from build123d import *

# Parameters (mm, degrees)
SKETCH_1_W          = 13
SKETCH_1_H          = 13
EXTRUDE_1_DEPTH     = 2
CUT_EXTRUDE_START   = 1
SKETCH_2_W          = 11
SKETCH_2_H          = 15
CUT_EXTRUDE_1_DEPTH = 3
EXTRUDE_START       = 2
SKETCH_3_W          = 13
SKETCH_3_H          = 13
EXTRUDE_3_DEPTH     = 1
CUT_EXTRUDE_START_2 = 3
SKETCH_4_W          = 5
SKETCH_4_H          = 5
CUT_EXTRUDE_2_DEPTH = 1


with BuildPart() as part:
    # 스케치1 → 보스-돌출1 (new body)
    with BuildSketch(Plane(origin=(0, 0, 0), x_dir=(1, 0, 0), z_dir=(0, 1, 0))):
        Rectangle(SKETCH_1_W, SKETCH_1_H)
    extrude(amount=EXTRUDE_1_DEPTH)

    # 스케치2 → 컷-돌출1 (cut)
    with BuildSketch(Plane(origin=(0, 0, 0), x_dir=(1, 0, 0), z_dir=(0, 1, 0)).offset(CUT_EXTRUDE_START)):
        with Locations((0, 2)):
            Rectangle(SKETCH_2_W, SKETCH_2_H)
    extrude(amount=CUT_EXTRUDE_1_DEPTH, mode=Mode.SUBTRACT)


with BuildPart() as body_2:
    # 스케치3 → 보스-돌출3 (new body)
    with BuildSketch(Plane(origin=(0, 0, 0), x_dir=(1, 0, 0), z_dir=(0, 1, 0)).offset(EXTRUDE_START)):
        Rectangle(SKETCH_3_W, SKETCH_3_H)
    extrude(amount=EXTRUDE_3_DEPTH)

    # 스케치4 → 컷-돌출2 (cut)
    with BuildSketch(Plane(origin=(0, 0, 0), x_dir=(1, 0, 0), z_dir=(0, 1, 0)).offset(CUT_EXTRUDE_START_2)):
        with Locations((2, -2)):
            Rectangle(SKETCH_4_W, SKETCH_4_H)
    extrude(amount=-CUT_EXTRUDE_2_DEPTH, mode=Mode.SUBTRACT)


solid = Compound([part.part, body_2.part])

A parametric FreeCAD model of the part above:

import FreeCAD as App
import Part
import Sketcher

V = App.Vector
Q = App.Units.Quantity

doc = App.newDocument("Part")
body = doc.addObject("PartDesign::Body", "Body")

# Sketch on XZ plane
sketch1 = body.newObject("Sketcher::SketchObject", "Sketch")
sketch1.AttachmentSupport = (doc.getObject("XZ_Plane"), [""])
sketch1.MapMode = "FlatFace"
sketch1.addGeometry(Part.LineSegment(V(-6.5, -6.5, 0), V(-6.5, 6.5, 0)), False)
sketch1.addGeometry(Part.LineSegment(V(-6.5, 6.5, 0), V(6.5, 6.5, 0)), False)
sketch1.addGeometry(Part.LineSegment(V(6.5, 6.5, 0), V(6.5, -6.5, 0)), False)
sketch1.addGeometry(Part.LineSegment(V(6.5, -6.5, 0), V(-6.5, -6.5, 0)), False)
sketch1.addConstraint(Sketcher.Constraint("Coincident", 0, 2, 1, 1))
sketch1.addConstraint(Sketcher.Constraint("Coincident", 1, 2, 2, 1))
sketch1.addConstraint(Sketcher.Constraint("Coincident", 2, 2, 3, 1))
sketch1.addConstraint(Sketcher.Constraint("Coincident", 3, 2, 0, 1))
sketch1.addConstraint(Sketcher.Constraint("Vertical", 0))
sketch1.addConstraint(Sketcher.Constraint("Horizontal", 1))
sketch1.addConstraint(Sketcher.Constraint("Vertical", 2))
sketch1.addConstraint(Sketcher.Constraint("Horizontal", 3))
sketch1.addConstraint(Sketcher.Constraint("Symmetric", 0, 2, 2, 2, -1, 1))
sketch1.addConstraint(Sketcher.Constraint("Equal", 3, 0))
sketch1.addConstraint(Sketcher.Constraint("DistanceX", 1, 1, 1, 2, Q("13 mm")))
pad1 = body.newObject("PartDesign::Pad", "Pad")
pad1.Profile = sketch1
pad1.Length = 2
pad1.Reversed = True

# Sketch on XZ plane
sketch2 = body.newObject("Sketcher::SketchObject", "Sketch001")
sketch2.AttachmentSupport = (doc.getObject("XZ_Plane"), [""])
sketch2.MapMode = "FlatFace"
sketch2.AttachmentOffset = App.Placement(V(0, 0, -1), App.Rotation())
sketch2.addGeometry(Part.LineSegment(V(-5.5, -9.5, 0), V(-5.5, 5.5, 0)), False)
sketch2.addGeometry(Part.LineSegment(V(-5.5, 5.5, 0), V(5.5, 5.5, 0)), False)
sketch2.addGeometry(Part.LineSegment(V(5.5, 5.5, 0), V(5.5, -9.5, 0)), False)
sketch2.addGeometry(Part.LineSegment(V(5.5, -9.5, 0), V(-5.5, -9.5, 0)), False)
sketch2.addConstraint(Sketcher.Constraint("Coincident", 0, 2, 1, 1))
sketch2.addConstraint(Sketcher.Constraint("Coincident", 1, 2, 2, 1))
sketch2.addConstraint(Sketcher.Constraint("Coincident", 2, 2, 3, 1))
sketch2.addConstraint(Sketcher.Constraint("Coincident", 3, 2, 0, 1))
sketch2.addConstraint(Sketcher.Constraint("Vertical", 0))
sketch2.addConstraint(Sketcher.Constraint("Horizontal", 1))
sketch2.addConstraint(Sketcher.Constraint("Vertical", 2))
sketch2.addConstraint(Sketcher.Constraint("Horizontal", 3))
sketch2.addConstraint(Sketcher.Constraint("DistanceX", 1, 1, 1, 2, Q("11 mm")))
sketch2.addConstraint(Sketcher.Constraint("DistanceY", 0, 1, 0, 2, Q("15 mm")))
sketch2.addConstraint(Sketcher.Constraint("DistanceX", 0, 2, -1, 1, Q("5.5 mm")))
sketch2.addConstraint(Sketcher.Constraint("DistanceY", -1, 1, 0, 2, Q("5.5 mm")))
pocket1 = body.newObject("PartDesign::Pocket", "Pocket")
pocket1.Profile = sketch2
pocket1.Length = 3
body2 = doc.addObject("PartDesign::Body", "Body001")

# Sketch on XZ plane
sketch3 = body2.newObject("Sketcher::SketchObject", "Sketch002")
sketch3.AttachmentSupport = (doc.getObject("XZ_Plane001"), [""])
sketch3.MapMode = "FlatFace"
sketch3.AttachmentOffset = App.Placement(V(0, 0, -2), App.Rotation())
sketch3.addGeometry(Part.LineSegment(V(-6.5, -6.5, 0), V(-6.5, 6.5, 0)), False)
sketch3.addGeometry(Part.LineSegment(V(-6.5, 6.5, 0), V(6.5, 6.5, 0)), False)
sketch3.addGeometry(Part.LineSegment(V(6.5, 6.5, 0), V(6.5, -6.5, 0)), False)
sketch3.addGeometry(Part.LineSegment(V(6.5, -6.5, 0), V(-6.5, -6.5, 0)), False)
sketch3.addConstraint(Sketcher.Constraint("Coincident", 0, 2, 1, 1))
sketch3.addConstraint(Sketcher.Constraint("Coincident", 1, 2, 2, 1))
sketch3.addConstraint(Sketcher.Constraint("Coincident", 2, 2, 3, 1))
sketch3.addConstraint(Sketcher.Constraint("Coincident", 3, 2, 0, 1))
sketch3.addConstraint(Sketcher.Constraint("Vertical", 0))
sketch3.addConstraint(Sketcher.Constraint("Horizontal", 1))
sketch3.addConstraint(Sketcher.Constraint("Vertical", 2))
sketch3.addConstraint(Sketcher.Constraint("Horizontal", 3))
sketch3.addConstraint(Sketcher.Constraint("Symmetric", 0, 2, 2, 2, -1, 1))
sketch3.addConstraint(Sketcher.Constraint("Equal", 3, 0))
sketch3.addConstraint(Sketcher.Constraint("DistanceX", 1, 1, 1, 2, Q("13 mm")))
pad2 = body2.newObject("PartDesign::Pad", "Pad001")
pad2.Profile = sketch3
pad2.Length = 1
pad2.Reversed = True

# Sketch on XZ plane
sketch4 = body2.newObject("Sketcher::SketchObject", "Sketch003")
sketch4.AttachmentSupport = (doc.getObject("XZ_Plane001"), [""])
sketch4.MapMode = "FlatFace"
sketch4.AttachmentOffset = App.Placement(V(0, 0, -3), App.Rotation())
sketch4.addGeometry(Part.LineSegment(V(-0.5, -0.5, 0), V(-0.5, 4.5, 0)), False)
sketch4.addGeometry(Part.LineSegment(V(-0.5, 4.5, 0), V(4.5, 4.5, 0)), False)
sketch4.addGeometry(Part.LineSegment(V(4.5, 4.5, 0), V(4.5, -0.5, 0)), False)
sketch4.addGeometry(Part.LineSegment(V(4.5, -0.5, 0), V(-0.5, -0.5, 0)), False)
sketch4.addConstraint(Sketcher.Constraint("Coincident", 0, 2, 1, 1))
sketch4.addConstraint(Sketcher.Constraint("Coincident", 1, 2, 2, 1))
sketch4.addConstraint(Sketcher.Constraint("Coincident", 2, 2, 3, 1))
sketch4.addConstraint(Sketcher.Constraint("Coincident", 3, 2, 0, 1))
sketch4.addConstraint(Sketcher.Constraint("Vertical", 0))
sketch4.addConstraint(Sketcher.Constraint("Horizontal", 1))
sketch4.addConstraint(Sketcher.Constraint("Vertical", 2))
sketch4.addConstraint(Sketcher.Constraint("Horizontal", 3))
sketch4.addConstraint(Sketcher.Constraint("Equal", 3, 0))
sketch4.addConstraint(Sketcher.Constraint("DistanceX", 1, 1, 1, 2, Q("5 mm")))
sketch4.addConstraint(Sketcher.Constraint("DistanceX", 0, 2, -1, 1, Q("0.5 mm")))
sketch4.addConstraint(Sketcher.Constraint("DistanceY", -1, 1, 0, 2, Q("4.5 mm")))
pocket2 = body2.newObject("PartDesign::Pocket", "Pocket001")
pocket2.Profile = sketch4
pocket2.Length = 1
pocket2.Reversed = True

doc.recompute()
